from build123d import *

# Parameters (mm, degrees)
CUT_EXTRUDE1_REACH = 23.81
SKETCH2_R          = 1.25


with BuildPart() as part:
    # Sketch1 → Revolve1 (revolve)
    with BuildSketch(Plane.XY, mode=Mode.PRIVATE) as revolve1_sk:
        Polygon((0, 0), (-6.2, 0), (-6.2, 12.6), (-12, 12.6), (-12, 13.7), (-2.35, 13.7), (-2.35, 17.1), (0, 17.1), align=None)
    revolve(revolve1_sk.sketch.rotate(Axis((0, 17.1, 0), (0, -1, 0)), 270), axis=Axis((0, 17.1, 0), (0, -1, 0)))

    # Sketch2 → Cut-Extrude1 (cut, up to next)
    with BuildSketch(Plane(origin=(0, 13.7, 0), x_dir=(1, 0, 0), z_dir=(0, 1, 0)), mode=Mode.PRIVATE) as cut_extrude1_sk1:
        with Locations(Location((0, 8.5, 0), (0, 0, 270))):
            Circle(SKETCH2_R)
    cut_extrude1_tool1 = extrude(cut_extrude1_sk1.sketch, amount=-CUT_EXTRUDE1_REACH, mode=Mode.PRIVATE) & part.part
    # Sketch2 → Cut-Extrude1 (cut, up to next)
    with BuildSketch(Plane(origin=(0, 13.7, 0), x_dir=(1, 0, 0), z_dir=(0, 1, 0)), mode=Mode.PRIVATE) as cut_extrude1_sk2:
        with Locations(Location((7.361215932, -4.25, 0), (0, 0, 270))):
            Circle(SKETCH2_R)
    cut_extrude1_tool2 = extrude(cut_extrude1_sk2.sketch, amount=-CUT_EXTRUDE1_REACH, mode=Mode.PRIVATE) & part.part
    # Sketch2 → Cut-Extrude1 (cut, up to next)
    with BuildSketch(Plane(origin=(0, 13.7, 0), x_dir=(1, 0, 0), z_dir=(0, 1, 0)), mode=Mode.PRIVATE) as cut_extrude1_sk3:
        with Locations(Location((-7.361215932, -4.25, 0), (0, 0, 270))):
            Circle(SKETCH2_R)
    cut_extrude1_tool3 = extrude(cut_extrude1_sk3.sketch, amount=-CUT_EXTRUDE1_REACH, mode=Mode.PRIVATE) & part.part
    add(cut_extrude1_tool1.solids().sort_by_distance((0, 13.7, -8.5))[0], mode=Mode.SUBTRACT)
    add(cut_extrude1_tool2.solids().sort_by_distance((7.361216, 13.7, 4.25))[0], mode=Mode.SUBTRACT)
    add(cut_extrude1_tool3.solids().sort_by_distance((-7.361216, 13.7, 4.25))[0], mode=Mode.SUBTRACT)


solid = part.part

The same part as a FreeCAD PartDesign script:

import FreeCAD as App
import Part
import Sketcher


def add_polygon(sketch, points):
    """Adds a closed chain of lines whose ends are joined by coincident constraints."""
    first, n = sketch.GeometryCount, len(points)
    for a, b in zip(points, points[1:] + points[:1]):
        sketch.addGeometry(Part.LineSegment(App.Vector(*a, 0), App.Vector(*b, 0)), False)
    for i in range(n):
        sketch.addConstraint(Sketcher.Constraint("Coincident", first + i, 2, first + (i + 1) % n, 1))

doc = App.newDocument("Part")
params = doc.addObject("Spreadsheet::Sheet", "Params")
for row, (alias, value) in enumerate([
    ("sketch1_width", "6.2 mm"),
    ("sketch1_width2", "5.8 mm"),
    ("sketch1_height", "17.1 mm"),
    ("sketch1_height2", "3.4 mm"),
    ("sketch1_height3", "1.1 mm"),
    ("revolution_angle", "360 deg"),
    ("sketch2_diameter", "2.5 mm"),
    ("sketch3_diameter", "2.5 mm"),
    ("sketch4_diameter", "2.5 mm"),
], start=1):
    params.set(f"A{row}", alias)
    params.set(f"B{row}", "=" + value)
    params.setAlias(f"B{row}", alias)

body = doc.addObject("PartDesign::Body", "Body")

sketch1 = body.newObject("Sketcher::SketchObject", "Sketch")
sketch1.AttachmentSupport = (doc.getObject("XY_Plane"), [""])
sketch1.MapMode = "FlatFace"
add_polygon(sketch1, [(-6.2, 0), (0, 0), (0, 17.1), (-2.4, 17.1), (-2.4, 13.7), (-12, 13.7), (-12, 12.6), (-6.2, 12.6)])
sketch1.addConstraint([
    Sketcher.Constraint("Horizontal", 0),
    Sketcher.Constraint("Vertical", 1),
    Sketcher.Constraint("Horizontal", 2),
    Sketcher.Constraint("Vertical", 3),
    Sketcher.Constraint("Horizontal", 4),
    Sketcher.Constraint("Vertical", 5),
    Sketcher.Constraint("Horizontal", 6),
    Sketcher.Constraint("Vertical", 7),
    Sketcher.Constraint("Coincident", 0, 2, -1, 1),
    Sketcher.Constraint("DistanceX", 0, 1, 0, 2, 6.2),
    Sketcher.Constraint("DistanceX", 6, 1, 6, 2, 5.8),
    Sketcher.Constraint("DistanceY", 1, 1, 1, 2, 17.1),
    Sketcher.Constraint("DistanceY", 3, 2, 3, 1, 3.4),
    Sketcher.Constraint("DistanceY", 5, 2, 5, 1, 1.1),
    Sketcher.Constraint("DistanceX", 2, 2, 2, 1, 2.35),
])
sketch1.setExpression("Constraints[17]", "Params.sketch1_width")
sketch1.setExpression("Constraints[18]", "Params.sketch1_width2")
sketch1.setExpression("Constraints[19]", "Params.sketch1_height")
sketch1.setExpression("Constraints[20]", "Params.sketch1_height2")
sketch1.setExpression("Constraints[21]", "Params.sketch1_height3")
revolution = body.newObject("PartDesign::Revolution", "Revolution")
revolution.Profile = sketch1
revolution.ReferenceAxis = (sketch1, ["V_Axis"])
revolution.setExpression("Angle", "Params.revolution_angle")

sketch2 = body.newObject("Sketcher::SketchObject", "Sketch001")
sketch2.AttachmentSupport = (doc.getObject("XZ_Plane"), [""])
sketch2.MapMode = "FlatFace"
sketch2.AttachmentOffset = App.Placement(App.Vector(0, 0, -13.7), App.Rotation())
sketch2.addGeometry(Part.Circle(App.Vector(0, -8.5, 0), App.Vector(0, 0, 1), 1.2), False)
sketch2.addConstraint([
    Sketcher.Constraint("PointOnObject", 0, 3, -2),
    Sketcher.Constraint("Diameter", 0, 2.5),
    Sketcher.Constraint("DistanceY", 0, 3, -1, 1, 8.5),
])
sketch2.setExpression("Constraints[1]", "Params.sketch2_diameter")
pocket1 = body.newObject("PartDesign::Pocket", "Pocket")
pocket1.Profile = sketch2
pocket1.Type = "UpToFirst"
pocket1.Reversed = True

sketch3 = body.newObject("Sketcher::SketchObject", "Sketch002")
sketch3.AttachmentSupport = (doc.getObject("XZ_Plane"), [""])
sketch3.MapMode = "FlatFace"
sketch3.AttachmentOffset = App.Placement(App.Vector(0, 0, -13.7), App.Rotation())
sketch3.addGeometry(Part.Circle(App.Vector(7.4, 4.2, 0), App.Vector(0, 0, 1), 1.2), False)
sketch3.addConstraint([
    Sketcher.Constraint("Diameter", 0, 2.5),
    Sketcher.Constraint("DistanceY", -1, 1, 0, 3, 4.25),
    Sketcher.Constraint("DistanceX", -1, 1, 0, 3, 7.361216),
])
sketch3.setExpression("Constraints[0]", "Params.sketch3_diameter")
pocket2 = body.newObject("PartDesign::Pocket", "Pocket001")
pocket2.Profile = sketch3
pocket2.Type = "UpToFirst"
pocket2.Reversed = True

sketch4 = body.newObject("Sketcher::SketchObject", "Sketch003")
sketch4.AttachmentSupport = (doc.getObject("XZ_Plane"), [""])
sketch4.MapMode = "FlatFace"
sketch4.AttachmentOffset = App.Placement(App.Vector(0, 0, -13.7), App.Rotation())
sketch4.addGeometry(Part.Circle(App.Vector(-7.4, 4.2, 0), App.Vector(0, 0, 1), 1.2), False)
sketch4.addConstraint([
    Sketcher.Constraint("Diameter", 0, 2.5),
    Sketcher.Constraint("DistanceY", -1, 1, 0, 3, 4.25),
    Sketcher.Constraint("DistanceX", 0, 3, -1, 1, 7.361216),
])
sketch4.setExpression("Constraints[0]", "Params.sketch4_diameter")
pocket3 = body.newObject("PartDesign::Pocket", "Pocket002")
pocket3.Profile = sketch4
pocket3.Type = "UpToFirst"
pocket3.Reversed = True

doc.recompute()
